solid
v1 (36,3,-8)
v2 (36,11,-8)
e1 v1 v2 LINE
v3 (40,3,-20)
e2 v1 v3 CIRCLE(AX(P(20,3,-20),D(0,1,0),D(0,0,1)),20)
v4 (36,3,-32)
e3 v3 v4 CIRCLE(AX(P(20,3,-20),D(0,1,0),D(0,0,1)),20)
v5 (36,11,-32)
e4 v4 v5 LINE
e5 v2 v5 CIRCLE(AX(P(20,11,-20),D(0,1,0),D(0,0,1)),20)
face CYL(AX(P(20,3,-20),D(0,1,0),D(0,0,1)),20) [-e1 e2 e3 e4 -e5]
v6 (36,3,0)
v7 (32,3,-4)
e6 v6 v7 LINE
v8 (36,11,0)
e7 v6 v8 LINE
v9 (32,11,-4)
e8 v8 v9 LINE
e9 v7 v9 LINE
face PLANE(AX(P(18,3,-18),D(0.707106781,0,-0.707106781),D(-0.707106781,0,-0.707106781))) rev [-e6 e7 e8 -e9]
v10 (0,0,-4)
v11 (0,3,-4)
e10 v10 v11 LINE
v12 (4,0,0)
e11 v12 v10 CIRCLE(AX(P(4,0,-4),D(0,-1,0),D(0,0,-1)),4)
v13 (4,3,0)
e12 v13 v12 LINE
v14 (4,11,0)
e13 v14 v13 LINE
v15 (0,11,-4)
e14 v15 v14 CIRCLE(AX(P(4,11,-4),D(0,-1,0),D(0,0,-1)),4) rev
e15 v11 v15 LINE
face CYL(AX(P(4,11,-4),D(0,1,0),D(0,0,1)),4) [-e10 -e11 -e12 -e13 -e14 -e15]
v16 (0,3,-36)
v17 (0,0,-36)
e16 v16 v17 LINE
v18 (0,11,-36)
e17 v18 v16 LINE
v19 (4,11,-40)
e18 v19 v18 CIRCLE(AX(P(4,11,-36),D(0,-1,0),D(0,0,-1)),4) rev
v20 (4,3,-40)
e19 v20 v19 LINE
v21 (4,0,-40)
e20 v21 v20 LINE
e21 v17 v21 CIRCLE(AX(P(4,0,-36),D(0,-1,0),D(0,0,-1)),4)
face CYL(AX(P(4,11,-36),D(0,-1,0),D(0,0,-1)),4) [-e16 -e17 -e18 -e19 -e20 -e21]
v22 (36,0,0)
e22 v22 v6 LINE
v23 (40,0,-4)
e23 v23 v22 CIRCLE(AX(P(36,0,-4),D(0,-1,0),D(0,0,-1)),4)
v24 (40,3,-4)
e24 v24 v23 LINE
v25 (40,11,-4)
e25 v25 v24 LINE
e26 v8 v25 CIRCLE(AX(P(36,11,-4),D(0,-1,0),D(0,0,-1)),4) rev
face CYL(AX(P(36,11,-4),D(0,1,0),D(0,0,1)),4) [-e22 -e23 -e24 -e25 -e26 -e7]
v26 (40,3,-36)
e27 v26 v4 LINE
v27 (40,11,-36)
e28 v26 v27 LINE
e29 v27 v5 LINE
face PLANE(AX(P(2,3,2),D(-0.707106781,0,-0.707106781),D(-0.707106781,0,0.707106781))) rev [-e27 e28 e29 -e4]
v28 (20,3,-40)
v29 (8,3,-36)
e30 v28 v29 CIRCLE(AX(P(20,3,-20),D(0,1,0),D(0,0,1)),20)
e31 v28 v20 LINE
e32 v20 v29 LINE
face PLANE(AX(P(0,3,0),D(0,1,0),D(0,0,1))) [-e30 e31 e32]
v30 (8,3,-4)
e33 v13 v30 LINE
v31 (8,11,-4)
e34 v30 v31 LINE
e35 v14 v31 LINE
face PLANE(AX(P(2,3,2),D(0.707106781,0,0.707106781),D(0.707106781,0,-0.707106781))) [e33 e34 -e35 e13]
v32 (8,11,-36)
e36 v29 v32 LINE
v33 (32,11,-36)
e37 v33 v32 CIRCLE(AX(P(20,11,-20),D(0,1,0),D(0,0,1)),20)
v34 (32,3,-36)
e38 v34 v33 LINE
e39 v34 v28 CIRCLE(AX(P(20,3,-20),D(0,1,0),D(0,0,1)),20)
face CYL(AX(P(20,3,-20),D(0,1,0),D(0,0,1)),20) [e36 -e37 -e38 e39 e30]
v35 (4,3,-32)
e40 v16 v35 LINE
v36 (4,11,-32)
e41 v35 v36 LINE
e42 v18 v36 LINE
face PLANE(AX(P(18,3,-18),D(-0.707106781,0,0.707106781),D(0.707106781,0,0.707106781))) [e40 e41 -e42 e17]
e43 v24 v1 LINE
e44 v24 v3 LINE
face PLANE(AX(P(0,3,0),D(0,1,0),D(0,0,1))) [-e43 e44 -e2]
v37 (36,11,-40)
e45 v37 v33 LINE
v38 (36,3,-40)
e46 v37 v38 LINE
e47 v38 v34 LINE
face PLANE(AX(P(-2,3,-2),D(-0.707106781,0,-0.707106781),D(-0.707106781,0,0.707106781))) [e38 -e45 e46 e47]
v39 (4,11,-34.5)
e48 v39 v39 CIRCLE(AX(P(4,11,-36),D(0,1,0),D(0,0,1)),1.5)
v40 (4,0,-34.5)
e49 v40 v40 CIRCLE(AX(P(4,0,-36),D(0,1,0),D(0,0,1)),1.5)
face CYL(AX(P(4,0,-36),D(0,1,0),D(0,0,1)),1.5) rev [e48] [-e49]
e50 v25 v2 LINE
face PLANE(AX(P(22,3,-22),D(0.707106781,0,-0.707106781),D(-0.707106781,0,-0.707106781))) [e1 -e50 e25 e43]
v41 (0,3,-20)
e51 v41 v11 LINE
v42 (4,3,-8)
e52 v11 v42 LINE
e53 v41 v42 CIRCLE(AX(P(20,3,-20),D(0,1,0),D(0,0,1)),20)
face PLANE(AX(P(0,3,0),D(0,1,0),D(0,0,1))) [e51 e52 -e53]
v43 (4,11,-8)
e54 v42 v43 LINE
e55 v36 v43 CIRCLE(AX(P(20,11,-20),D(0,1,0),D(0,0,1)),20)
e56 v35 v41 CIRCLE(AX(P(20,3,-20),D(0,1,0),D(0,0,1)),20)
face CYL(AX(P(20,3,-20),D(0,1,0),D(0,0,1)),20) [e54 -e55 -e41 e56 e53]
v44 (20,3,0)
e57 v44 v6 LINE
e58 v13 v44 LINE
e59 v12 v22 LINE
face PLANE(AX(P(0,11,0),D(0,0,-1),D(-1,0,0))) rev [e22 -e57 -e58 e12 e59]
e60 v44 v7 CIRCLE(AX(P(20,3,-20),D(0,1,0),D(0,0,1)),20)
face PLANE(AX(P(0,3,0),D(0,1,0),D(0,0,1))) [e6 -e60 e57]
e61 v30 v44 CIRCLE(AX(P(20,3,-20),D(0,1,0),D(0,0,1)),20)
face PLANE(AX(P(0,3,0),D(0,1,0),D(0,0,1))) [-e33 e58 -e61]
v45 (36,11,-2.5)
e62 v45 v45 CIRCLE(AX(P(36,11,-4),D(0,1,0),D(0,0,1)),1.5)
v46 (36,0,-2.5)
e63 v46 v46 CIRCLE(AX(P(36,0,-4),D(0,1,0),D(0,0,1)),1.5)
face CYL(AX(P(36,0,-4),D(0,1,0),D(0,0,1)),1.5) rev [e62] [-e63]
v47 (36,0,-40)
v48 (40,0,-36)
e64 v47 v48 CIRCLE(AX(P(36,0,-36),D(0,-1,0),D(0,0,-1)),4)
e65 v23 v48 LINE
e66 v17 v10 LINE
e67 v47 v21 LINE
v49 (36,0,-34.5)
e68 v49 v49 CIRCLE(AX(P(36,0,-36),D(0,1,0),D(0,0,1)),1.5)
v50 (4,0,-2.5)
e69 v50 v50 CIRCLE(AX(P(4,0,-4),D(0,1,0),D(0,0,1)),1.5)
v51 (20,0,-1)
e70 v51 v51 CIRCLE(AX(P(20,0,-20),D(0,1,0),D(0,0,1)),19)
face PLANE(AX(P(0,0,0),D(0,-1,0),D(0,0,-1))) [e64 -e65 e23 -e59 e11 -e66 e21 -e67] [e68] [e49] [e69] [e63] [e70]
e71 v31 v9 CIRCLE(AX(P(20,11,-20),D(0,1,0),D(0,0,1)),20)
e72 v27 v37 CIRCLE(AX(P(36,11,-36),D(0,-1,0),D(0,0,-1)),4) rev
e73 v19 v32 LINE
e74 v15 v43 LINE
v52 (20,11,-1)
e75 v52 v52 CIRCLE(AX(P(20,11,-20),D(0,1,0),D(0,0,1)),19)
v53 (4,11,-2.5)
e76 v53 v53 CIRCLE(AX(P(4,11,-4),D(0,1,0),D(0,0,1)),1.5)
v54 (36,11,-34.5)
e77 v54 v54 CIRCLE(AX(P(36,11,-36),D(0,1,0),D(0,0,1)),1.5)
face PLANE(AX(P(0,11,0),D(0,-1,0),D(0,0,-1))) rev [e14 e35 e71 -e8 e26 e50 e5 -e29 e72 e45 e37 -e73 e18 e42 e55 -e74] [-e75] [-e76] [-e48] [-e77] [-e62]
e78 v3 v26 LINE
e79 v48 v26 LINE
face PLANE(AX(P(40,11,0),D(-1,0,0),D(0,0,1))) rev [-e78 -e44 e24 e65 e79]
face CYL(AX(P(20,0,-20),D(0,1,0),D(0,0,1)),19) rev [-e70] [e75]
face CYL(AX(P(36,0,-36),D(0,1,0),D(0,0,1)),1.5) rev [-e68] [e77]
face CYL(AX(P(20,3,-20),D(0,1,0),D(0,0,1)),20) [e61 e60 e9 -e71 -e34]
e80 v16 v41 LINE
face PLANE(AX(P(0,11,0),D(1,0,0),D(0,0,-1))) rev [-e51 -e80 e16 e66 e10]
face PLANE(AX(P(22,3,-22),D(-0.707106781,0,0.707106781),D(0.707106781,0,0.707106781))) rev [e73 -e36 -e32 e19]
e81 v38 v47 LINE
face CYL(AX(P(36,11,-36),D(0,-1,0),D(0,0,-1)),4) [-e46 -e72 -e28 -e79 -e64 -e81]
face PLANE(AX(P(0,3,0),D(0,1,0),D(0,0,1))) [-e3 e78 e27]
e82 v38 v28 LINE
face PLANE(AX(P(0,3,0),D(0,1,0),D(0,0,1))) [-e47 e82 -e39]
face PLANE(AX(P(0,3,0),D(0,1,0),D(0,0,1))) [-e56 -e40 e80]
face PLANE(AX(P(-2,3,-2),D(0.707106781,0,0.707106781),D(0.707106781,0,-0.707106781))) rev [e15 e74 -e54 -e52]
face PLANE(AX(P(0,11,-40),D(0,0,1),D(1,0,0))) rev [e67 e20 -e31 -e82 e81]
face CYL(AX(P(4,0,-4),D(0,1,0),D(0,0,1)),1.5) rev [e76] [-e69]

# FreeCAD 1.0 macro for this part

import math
import FreeCAD as App
import Part
import Sketcher

V = App.Vector


def edges_at(feature, points):
    """Names of the edges that pass closest to the given points."""
    edges = feature.Shape.Edges
    near = lambda p: min(range(len(edges)), key=lambda i: edges[i].distToShape(Part.Vertex(*p))[0])
    return sorted({f"Edge{near(p) + 1}" for p in points})


def add_polygon(sketch, points):
    """Adds a closed chain of lines whose ends are joined by coincident constraints."""
    first, n = sketch.GeometryCount, len(points)
    for a, b in zip(points, points[1:] + points[:1]):
        sketch.addGeometry(Part.LineSegment(App.Vector(*a, 0), App.Vector(*b, 0)), False)
    for i in range(n):
        sketch.addConstraint(Sketcher.Constraint("Coincident", first + i, 2, first + (i + 1) % n, 1))

doc = App.newDocument("Part")
body = doc.addObject("PartDesign::Body", "Body")

sketch1 = body.newObject("Sketcher::SketchObject", "Sketch")
sketch1.AttachmentSupport = (doc.getObject("XZ_Plane"), [""])
sketch1.MapMode = "FlatFace"
add_polygon(sketch1, [(0, -40), (0, 0), (40, 0), (40, -40)])
sketch1.addConstraint([
    Sketcher.Constraint("Vertical", 0),
    Sketcher.Constraint("Horizontal", 1),
    Sketcher.Constraint("Vertical", 2),
    Sketcher.Constraint("Horizontal", 3),
    Sketcher.Constraint("Coincident", 0, 2, -1, 1),
    Sketcher.Constraint("Equal", 3, 0),
    Sketcher.Constraint("DistanceX", 1, 1, 1, 2, 40.0),
])
pad1 = body.newObject("PartDesign::Pad", "Pad")
pad1.Profile = sketch1
pad1.Length = 11
pad1.Reversed = True
doc.recompute()

fillet = body.newObject("PartDesign::Fillet", "Fillet")
fillet.Base = (pad1, edges_at(pad1, [(40, 5.5, 0)]))
fillet.Radius = 4
doc.recompute()

fillet2 = body.newObject("PartDesign::Fillet", "Fillet001")
fillet2.Base = (fillet, edges_at(fillet, [(0, 5.5, 0)]))
fillet2.Radius = 4
doc.recompute()

fillet3 = body.newObject("PartDesign::Fillet", "Fillet002")
fillet3.Base = (fillet2, edges_at(fillet2, [(0, 5.5, -40)]))
fillet3.Radius = 4
doc.recompute()

fillet4 = body.newObject("PartDesign::Fillet", "Fillet003")
fillet4.Base = (fillet3, edges_at(fillet3, [(40, 5.5, -40)]))
fillet4.Radius = 4

sketch2 = body.newObject("Sketcher::SketchObject", "Sketch001")
sketch2.AttachmentSupport = (doc.getObject("XZ_Plane"), [""])
sketch2.MapMode = "FlatFace"
sketch2.AttachmentOffset = App.Placement(V(0, 0, -11), App.Rotation())
sketch2.addGeometry(Part.Circle(V(20, -20, 0), V(0, 0, 1), 19), False)
sketch2.addConstraint([
    Sketcher.Constraint("Diameter", 0, 38.0),
    Sketcher.Constraint("DistanceX", -1, 1, 0, 3, 20.0),
    Sketcher.Constraint("DistanceY", 0, 3, -1, 1, 20.0),
])
pocket1 = body.newObject("PartDesign::Pocket", "Pocket")
pocket1.Profile = sketch2
pocket1.Length = 11
pocket1.Reversed = True

sketch3 = body.newObject("Sketcher::SketchObject", "Sketch002")
sketch3.AttachmentSupport = (doc.getObject("XZ_Plane"), [""])
sketch3.MapMode = "FlatFace"
sketch3.AttachmentOffset = App.Placement(V(0, 0, -11), App.Rotation())
sketch3.addGeometry([
    Part.LineSegment(V(4, -32, 0), V(0, -36, 0)),
    Part.LineSegment(V(0, -36, 0), V(0, -20, 0)),
    Part.ArcOfCircle(Part.Circle(V(20, -20, 0), V(0, 0, 1), 20), math.radians(-180), math.radians(-143)),
    Part.LineSegment(V(4, -40, 0), V(8, -36, 0)),
    Part.ArcOfCircle(Part.Circle(V(20, -20, 0), V(0, 0, 1), 20), math.radians(-127), math.radians(-90)),
    Part.LineSegment(V(20, -40, 0), V(4, -40, 0)),
    Part.LineSegment(V(36, -40, 0), V(20, -40, 0)),
    Part.ArcOfCircle(Part.Circle(V(20, -20, 0), V(0, 0, 1), 20), math.radians(-90), math.radians(-53)),
    Part.LineSegment(V(32, -36, 0), V(36, -40, 0)),
    Part.LineSegment(V(40, -36, 0), V(36, -32, 0)),
    Part.ArcOfCircle(Part.Circle(V(20, -20, 0), V(0, 0, 1), 20), math.radians(-37), math.radians(0)),
    Part.LineSegment(V(40, -20, 0), V(40, -36, 0)),
    Part.LineSegment(V(40, -4, 0), V(40, -20, 0)),
    Part.ArcOfCircle(Part.Circle(V(20, -20, 0), V(0, 0, 1), 20), math.radians(0), math.radians(37)),
    Part.LineSegment(V(36, -8, 0), V(40, -4, 0)),
    Part.ArcOfCircle(Part.Circle(V(20, -20, 0), V(0, 0, 1), 20), math.radians(53), math.radians(90)),
    Part.LineSegment(V(20, 0, 0), V(36, 0, 0)),
    Part.LineSegment(V(36, 0, 0), V(32, -4, 0)),
    Part.ArcOfCircle(Part.Circle(V(20, -20, 0), V(0, 0, 1), 20), math.radians(90), math.radians(127)),
    Part.LineSegment(V(8, -4, 0), V(4, 0, 0)),
    Part.LineSegment(V(4, 0, 0), V(20, 0, 0)),
    Part.ArcOfCircle(Part.Circle(V(20, -20, 0), V(0, 0, 1), 20), math.radians(143), math.radians(180)),
    Part.LineSegment(V(0, -20, 0), V(0, -4, 0)),
    Part.LineSegment(V(0, -4, 0), V(4, -8, 0)),
], False)
sketch3.addConstraint([
    Sketcher.Constraint("Coincident", 0, 2, 1, 1),
    Sketcher.Constraint("Tangent", 1, 2, 2, 1),
    Sketcher.Constraint("Coincident", 2, 2, 0, 1),
    Sketcher.Constraint("Coincident", 3, 2, 4, 1),
    Sketcher.Constraint("Tangent", 4, 2, 5, 1),
    Sketcher.Constraint("Coincident", 5, 2, 3, 1),
    Sketcher.Constraint("Tangent", 6, 2, 7, 1),
    Sketcher.Constraint("Coincident", 7, 2, 8, 1),
    Sketcher.Constraint("Coincident", 8, 2, 6, 1),
    Sketcher.Constraint("Coincident", 9, 2, 10, 1),
    Sketcher.Constraint("Tangent", 10, 2, 11, 1),
    Sketcher.Constraint("Coincident", 11, 2, 9, 1),
    Sketcher.Constraint("Tangent", 12, 2, 13, 1),
    Sketcher.Constraint("Coincident", 13, 2, 14, 1),
    Sketcher.Constraint("Coincident", 14, 2, 12, 1),
    Sketcher.Constraint("Tangent", 15, 2, 16, 1),
    Sketcher.Constraint("Coincident", 16, 2, 17, 1),
    Sketcher.Constraint("Coincident", 17, 2, 15, 1),
    Sketcher.Constraint("Coincident", 18, 2, 19, 1),
    Sketcher.Constraint("Coincident", 19, 2, 20, 1),
    Sketcher.Constraint("Tangent", 20, 2, 18, 1),
    Sketcher.Constraint("Tangent", 21, 2, 22, 1),
    Sketcher.Constraint("Coincident", 22, 2, 23, 1),
    Sketcher.Constraint("Coincident", 23, 2, 21, 1),
    Sketcher.Constraint("Vertical", 1),
    Sketcher.Constraint("Horizontal", 5),
    Sketcher.Constraint("Horizontal", 6),
    Sketcher.Constraint("Vertical", 11),
    Sketcher.Constraint("Vertical", 12),
    Sketcher.Constraint("Horizontal", 16),
    Sketcher.Constraint("Horizontal", 20),
    Sketcher.Constraint("Vertical", 22),
    Sketcher.Constraint("Coincident", 4, 3, 2, 3),
    Sketcher.Constraint("Coincident", 7, 3, 2, 3),
    Sketcher.Constraint("Coincident", 10, 3, 2, 3),
    Sketcher.Constraint("Coincident", 13, 3, 2, 3),
    Sketcher.Constraint("Coincident", 15, 3, 2, 3),
    Sketcher.Constraint("Coincident", 18, 3, 2, 3),
    Sketcher.Constraint("Coincident", 21, 3, 2, 3),
    Sketcher.Constraint("Equal", 2, 4),
    Sketcher.Constraint("Equal", 4, 7),
    Sketcher.Constraint("Equal", 7, 10),
    Sketcher.Constraint("Equal", 10, 13),
    Sketcher.Constraint("Equal", 13, 15),
    Sketcher.Constraint("Equal", 15, 18),
    Sketcher.Constraint("Equal", 18, 21),
    Sketcher.Constraint("PointOnObject", 0, 2, -2),
    Sketcher.Constraint("PointOnObject", 15, 2, -1),
    Sketcher.Constraint("Parallel", 0, 3),
    Sketcher.Constraint("Perpendicular", 3, 8),
    Sketcher.Constraint("Parallel", 8, 9),
    Sketcher.Constraint("Perpendicular", 9, 14),
    Sketcher.Constraint("Parallel", 14, 17),
    Sketcher.Constraint("Perpendicular", 17, 19),
    Sketcher.Constraint("Parallel", 19, 23),
    Sketcher.Constraint("Horizontal", 0, 2, 3, 2),
    Sketcher.Constraint("Horizontal", 3, 2, 7, 2),
    Sketcher.Constraint("Horizontal", 2, 2, 9, 2),
    Sketcher.Constraint("Horizontal", 7, 2, 11, 2),
    Sketcher.Constraint("Horizontal", 14, 2, 17, 2),
    Sketcher.Constraint("Horizontal", 17, 2, 18, 2),
    Sketcher.Constraint("Horizontal", 18, 2, 22, 2),
    Sketcher.Constraint("Vertical", 2, 2, 5, 2),
    Sketcher.Constraint("Vertical", 9, 2, 13, 2),
    Sketcher.Constraint("Radius", 2, 20.0),
])
pocket2 = body.newObject("PartDesign::Pocket", "Pocket001")
pocket2.Profile = sketch3
pocket2.Length = 8
pocket2.Reversed = True

sketch4 = body.newObject("Sketcher::SketchObject", "Sketch003")
sketch4.AttachmentSupport = (doc.getObject("XZ_Plane"), [""])
sketch4.MapMode = "FlatFace"
sketch4.AttachmentOffset = App.Placement(V(0, 0, -11), App.Rotation())
sketch4.addGeometry([
    Part.Circle(V(36, -36, 0), V(0, 0, 1), 1.5),
    Part.Circle(V(4, -36, 0), V(0, 0, 1), 1.5),
    Part.Circle(V(4, -4, 0), V(0, 0, 1), 1.5),
    Part.Circle(V(36, -4, 0), V(0, 0, 1), 1.5),
], False)
sketch4.addConstraint([
    Sketcher.Constraint("Equal", 0, 1),
    Sketcher.Constraint("Equal", 1, 2),
    Sketcher.Constraint("Equal", 2, 3),
    Sketcher.Constraint("Horizontal", 0, 3, 1, 3),
    Sketcher.Constraint("Horizontal", 2, 3, 3, 3),
    Sketcher.Constraint("Vertical", 1, 3, 2, 3),
    Sketcher.Constraint("Vertical", 0, 3, 3, 3),
    Sketcher.Constraint("Diameter", 0, 3.0),
    Sketcher.Constraint("DistanceX", -1, 1, 0, 3, 36.0),
    Sketcher.Constraint("DistanceY", 0, 3, -1, 1, 36.0),
    Sketcher.Constraint("DistanceX", -1, 1, 1, 3, 4.0),
    Sketcher.Constraint("DistanceY", 2, 3, -1, 1, 4.0),
])
pocket3 = body.newObject("PartDesign::Pocket", "Pocket002")
pocket3.Profile = sketch4
pocket3.Length = 11
pocket3.Reversed = True

doc.recompute()
